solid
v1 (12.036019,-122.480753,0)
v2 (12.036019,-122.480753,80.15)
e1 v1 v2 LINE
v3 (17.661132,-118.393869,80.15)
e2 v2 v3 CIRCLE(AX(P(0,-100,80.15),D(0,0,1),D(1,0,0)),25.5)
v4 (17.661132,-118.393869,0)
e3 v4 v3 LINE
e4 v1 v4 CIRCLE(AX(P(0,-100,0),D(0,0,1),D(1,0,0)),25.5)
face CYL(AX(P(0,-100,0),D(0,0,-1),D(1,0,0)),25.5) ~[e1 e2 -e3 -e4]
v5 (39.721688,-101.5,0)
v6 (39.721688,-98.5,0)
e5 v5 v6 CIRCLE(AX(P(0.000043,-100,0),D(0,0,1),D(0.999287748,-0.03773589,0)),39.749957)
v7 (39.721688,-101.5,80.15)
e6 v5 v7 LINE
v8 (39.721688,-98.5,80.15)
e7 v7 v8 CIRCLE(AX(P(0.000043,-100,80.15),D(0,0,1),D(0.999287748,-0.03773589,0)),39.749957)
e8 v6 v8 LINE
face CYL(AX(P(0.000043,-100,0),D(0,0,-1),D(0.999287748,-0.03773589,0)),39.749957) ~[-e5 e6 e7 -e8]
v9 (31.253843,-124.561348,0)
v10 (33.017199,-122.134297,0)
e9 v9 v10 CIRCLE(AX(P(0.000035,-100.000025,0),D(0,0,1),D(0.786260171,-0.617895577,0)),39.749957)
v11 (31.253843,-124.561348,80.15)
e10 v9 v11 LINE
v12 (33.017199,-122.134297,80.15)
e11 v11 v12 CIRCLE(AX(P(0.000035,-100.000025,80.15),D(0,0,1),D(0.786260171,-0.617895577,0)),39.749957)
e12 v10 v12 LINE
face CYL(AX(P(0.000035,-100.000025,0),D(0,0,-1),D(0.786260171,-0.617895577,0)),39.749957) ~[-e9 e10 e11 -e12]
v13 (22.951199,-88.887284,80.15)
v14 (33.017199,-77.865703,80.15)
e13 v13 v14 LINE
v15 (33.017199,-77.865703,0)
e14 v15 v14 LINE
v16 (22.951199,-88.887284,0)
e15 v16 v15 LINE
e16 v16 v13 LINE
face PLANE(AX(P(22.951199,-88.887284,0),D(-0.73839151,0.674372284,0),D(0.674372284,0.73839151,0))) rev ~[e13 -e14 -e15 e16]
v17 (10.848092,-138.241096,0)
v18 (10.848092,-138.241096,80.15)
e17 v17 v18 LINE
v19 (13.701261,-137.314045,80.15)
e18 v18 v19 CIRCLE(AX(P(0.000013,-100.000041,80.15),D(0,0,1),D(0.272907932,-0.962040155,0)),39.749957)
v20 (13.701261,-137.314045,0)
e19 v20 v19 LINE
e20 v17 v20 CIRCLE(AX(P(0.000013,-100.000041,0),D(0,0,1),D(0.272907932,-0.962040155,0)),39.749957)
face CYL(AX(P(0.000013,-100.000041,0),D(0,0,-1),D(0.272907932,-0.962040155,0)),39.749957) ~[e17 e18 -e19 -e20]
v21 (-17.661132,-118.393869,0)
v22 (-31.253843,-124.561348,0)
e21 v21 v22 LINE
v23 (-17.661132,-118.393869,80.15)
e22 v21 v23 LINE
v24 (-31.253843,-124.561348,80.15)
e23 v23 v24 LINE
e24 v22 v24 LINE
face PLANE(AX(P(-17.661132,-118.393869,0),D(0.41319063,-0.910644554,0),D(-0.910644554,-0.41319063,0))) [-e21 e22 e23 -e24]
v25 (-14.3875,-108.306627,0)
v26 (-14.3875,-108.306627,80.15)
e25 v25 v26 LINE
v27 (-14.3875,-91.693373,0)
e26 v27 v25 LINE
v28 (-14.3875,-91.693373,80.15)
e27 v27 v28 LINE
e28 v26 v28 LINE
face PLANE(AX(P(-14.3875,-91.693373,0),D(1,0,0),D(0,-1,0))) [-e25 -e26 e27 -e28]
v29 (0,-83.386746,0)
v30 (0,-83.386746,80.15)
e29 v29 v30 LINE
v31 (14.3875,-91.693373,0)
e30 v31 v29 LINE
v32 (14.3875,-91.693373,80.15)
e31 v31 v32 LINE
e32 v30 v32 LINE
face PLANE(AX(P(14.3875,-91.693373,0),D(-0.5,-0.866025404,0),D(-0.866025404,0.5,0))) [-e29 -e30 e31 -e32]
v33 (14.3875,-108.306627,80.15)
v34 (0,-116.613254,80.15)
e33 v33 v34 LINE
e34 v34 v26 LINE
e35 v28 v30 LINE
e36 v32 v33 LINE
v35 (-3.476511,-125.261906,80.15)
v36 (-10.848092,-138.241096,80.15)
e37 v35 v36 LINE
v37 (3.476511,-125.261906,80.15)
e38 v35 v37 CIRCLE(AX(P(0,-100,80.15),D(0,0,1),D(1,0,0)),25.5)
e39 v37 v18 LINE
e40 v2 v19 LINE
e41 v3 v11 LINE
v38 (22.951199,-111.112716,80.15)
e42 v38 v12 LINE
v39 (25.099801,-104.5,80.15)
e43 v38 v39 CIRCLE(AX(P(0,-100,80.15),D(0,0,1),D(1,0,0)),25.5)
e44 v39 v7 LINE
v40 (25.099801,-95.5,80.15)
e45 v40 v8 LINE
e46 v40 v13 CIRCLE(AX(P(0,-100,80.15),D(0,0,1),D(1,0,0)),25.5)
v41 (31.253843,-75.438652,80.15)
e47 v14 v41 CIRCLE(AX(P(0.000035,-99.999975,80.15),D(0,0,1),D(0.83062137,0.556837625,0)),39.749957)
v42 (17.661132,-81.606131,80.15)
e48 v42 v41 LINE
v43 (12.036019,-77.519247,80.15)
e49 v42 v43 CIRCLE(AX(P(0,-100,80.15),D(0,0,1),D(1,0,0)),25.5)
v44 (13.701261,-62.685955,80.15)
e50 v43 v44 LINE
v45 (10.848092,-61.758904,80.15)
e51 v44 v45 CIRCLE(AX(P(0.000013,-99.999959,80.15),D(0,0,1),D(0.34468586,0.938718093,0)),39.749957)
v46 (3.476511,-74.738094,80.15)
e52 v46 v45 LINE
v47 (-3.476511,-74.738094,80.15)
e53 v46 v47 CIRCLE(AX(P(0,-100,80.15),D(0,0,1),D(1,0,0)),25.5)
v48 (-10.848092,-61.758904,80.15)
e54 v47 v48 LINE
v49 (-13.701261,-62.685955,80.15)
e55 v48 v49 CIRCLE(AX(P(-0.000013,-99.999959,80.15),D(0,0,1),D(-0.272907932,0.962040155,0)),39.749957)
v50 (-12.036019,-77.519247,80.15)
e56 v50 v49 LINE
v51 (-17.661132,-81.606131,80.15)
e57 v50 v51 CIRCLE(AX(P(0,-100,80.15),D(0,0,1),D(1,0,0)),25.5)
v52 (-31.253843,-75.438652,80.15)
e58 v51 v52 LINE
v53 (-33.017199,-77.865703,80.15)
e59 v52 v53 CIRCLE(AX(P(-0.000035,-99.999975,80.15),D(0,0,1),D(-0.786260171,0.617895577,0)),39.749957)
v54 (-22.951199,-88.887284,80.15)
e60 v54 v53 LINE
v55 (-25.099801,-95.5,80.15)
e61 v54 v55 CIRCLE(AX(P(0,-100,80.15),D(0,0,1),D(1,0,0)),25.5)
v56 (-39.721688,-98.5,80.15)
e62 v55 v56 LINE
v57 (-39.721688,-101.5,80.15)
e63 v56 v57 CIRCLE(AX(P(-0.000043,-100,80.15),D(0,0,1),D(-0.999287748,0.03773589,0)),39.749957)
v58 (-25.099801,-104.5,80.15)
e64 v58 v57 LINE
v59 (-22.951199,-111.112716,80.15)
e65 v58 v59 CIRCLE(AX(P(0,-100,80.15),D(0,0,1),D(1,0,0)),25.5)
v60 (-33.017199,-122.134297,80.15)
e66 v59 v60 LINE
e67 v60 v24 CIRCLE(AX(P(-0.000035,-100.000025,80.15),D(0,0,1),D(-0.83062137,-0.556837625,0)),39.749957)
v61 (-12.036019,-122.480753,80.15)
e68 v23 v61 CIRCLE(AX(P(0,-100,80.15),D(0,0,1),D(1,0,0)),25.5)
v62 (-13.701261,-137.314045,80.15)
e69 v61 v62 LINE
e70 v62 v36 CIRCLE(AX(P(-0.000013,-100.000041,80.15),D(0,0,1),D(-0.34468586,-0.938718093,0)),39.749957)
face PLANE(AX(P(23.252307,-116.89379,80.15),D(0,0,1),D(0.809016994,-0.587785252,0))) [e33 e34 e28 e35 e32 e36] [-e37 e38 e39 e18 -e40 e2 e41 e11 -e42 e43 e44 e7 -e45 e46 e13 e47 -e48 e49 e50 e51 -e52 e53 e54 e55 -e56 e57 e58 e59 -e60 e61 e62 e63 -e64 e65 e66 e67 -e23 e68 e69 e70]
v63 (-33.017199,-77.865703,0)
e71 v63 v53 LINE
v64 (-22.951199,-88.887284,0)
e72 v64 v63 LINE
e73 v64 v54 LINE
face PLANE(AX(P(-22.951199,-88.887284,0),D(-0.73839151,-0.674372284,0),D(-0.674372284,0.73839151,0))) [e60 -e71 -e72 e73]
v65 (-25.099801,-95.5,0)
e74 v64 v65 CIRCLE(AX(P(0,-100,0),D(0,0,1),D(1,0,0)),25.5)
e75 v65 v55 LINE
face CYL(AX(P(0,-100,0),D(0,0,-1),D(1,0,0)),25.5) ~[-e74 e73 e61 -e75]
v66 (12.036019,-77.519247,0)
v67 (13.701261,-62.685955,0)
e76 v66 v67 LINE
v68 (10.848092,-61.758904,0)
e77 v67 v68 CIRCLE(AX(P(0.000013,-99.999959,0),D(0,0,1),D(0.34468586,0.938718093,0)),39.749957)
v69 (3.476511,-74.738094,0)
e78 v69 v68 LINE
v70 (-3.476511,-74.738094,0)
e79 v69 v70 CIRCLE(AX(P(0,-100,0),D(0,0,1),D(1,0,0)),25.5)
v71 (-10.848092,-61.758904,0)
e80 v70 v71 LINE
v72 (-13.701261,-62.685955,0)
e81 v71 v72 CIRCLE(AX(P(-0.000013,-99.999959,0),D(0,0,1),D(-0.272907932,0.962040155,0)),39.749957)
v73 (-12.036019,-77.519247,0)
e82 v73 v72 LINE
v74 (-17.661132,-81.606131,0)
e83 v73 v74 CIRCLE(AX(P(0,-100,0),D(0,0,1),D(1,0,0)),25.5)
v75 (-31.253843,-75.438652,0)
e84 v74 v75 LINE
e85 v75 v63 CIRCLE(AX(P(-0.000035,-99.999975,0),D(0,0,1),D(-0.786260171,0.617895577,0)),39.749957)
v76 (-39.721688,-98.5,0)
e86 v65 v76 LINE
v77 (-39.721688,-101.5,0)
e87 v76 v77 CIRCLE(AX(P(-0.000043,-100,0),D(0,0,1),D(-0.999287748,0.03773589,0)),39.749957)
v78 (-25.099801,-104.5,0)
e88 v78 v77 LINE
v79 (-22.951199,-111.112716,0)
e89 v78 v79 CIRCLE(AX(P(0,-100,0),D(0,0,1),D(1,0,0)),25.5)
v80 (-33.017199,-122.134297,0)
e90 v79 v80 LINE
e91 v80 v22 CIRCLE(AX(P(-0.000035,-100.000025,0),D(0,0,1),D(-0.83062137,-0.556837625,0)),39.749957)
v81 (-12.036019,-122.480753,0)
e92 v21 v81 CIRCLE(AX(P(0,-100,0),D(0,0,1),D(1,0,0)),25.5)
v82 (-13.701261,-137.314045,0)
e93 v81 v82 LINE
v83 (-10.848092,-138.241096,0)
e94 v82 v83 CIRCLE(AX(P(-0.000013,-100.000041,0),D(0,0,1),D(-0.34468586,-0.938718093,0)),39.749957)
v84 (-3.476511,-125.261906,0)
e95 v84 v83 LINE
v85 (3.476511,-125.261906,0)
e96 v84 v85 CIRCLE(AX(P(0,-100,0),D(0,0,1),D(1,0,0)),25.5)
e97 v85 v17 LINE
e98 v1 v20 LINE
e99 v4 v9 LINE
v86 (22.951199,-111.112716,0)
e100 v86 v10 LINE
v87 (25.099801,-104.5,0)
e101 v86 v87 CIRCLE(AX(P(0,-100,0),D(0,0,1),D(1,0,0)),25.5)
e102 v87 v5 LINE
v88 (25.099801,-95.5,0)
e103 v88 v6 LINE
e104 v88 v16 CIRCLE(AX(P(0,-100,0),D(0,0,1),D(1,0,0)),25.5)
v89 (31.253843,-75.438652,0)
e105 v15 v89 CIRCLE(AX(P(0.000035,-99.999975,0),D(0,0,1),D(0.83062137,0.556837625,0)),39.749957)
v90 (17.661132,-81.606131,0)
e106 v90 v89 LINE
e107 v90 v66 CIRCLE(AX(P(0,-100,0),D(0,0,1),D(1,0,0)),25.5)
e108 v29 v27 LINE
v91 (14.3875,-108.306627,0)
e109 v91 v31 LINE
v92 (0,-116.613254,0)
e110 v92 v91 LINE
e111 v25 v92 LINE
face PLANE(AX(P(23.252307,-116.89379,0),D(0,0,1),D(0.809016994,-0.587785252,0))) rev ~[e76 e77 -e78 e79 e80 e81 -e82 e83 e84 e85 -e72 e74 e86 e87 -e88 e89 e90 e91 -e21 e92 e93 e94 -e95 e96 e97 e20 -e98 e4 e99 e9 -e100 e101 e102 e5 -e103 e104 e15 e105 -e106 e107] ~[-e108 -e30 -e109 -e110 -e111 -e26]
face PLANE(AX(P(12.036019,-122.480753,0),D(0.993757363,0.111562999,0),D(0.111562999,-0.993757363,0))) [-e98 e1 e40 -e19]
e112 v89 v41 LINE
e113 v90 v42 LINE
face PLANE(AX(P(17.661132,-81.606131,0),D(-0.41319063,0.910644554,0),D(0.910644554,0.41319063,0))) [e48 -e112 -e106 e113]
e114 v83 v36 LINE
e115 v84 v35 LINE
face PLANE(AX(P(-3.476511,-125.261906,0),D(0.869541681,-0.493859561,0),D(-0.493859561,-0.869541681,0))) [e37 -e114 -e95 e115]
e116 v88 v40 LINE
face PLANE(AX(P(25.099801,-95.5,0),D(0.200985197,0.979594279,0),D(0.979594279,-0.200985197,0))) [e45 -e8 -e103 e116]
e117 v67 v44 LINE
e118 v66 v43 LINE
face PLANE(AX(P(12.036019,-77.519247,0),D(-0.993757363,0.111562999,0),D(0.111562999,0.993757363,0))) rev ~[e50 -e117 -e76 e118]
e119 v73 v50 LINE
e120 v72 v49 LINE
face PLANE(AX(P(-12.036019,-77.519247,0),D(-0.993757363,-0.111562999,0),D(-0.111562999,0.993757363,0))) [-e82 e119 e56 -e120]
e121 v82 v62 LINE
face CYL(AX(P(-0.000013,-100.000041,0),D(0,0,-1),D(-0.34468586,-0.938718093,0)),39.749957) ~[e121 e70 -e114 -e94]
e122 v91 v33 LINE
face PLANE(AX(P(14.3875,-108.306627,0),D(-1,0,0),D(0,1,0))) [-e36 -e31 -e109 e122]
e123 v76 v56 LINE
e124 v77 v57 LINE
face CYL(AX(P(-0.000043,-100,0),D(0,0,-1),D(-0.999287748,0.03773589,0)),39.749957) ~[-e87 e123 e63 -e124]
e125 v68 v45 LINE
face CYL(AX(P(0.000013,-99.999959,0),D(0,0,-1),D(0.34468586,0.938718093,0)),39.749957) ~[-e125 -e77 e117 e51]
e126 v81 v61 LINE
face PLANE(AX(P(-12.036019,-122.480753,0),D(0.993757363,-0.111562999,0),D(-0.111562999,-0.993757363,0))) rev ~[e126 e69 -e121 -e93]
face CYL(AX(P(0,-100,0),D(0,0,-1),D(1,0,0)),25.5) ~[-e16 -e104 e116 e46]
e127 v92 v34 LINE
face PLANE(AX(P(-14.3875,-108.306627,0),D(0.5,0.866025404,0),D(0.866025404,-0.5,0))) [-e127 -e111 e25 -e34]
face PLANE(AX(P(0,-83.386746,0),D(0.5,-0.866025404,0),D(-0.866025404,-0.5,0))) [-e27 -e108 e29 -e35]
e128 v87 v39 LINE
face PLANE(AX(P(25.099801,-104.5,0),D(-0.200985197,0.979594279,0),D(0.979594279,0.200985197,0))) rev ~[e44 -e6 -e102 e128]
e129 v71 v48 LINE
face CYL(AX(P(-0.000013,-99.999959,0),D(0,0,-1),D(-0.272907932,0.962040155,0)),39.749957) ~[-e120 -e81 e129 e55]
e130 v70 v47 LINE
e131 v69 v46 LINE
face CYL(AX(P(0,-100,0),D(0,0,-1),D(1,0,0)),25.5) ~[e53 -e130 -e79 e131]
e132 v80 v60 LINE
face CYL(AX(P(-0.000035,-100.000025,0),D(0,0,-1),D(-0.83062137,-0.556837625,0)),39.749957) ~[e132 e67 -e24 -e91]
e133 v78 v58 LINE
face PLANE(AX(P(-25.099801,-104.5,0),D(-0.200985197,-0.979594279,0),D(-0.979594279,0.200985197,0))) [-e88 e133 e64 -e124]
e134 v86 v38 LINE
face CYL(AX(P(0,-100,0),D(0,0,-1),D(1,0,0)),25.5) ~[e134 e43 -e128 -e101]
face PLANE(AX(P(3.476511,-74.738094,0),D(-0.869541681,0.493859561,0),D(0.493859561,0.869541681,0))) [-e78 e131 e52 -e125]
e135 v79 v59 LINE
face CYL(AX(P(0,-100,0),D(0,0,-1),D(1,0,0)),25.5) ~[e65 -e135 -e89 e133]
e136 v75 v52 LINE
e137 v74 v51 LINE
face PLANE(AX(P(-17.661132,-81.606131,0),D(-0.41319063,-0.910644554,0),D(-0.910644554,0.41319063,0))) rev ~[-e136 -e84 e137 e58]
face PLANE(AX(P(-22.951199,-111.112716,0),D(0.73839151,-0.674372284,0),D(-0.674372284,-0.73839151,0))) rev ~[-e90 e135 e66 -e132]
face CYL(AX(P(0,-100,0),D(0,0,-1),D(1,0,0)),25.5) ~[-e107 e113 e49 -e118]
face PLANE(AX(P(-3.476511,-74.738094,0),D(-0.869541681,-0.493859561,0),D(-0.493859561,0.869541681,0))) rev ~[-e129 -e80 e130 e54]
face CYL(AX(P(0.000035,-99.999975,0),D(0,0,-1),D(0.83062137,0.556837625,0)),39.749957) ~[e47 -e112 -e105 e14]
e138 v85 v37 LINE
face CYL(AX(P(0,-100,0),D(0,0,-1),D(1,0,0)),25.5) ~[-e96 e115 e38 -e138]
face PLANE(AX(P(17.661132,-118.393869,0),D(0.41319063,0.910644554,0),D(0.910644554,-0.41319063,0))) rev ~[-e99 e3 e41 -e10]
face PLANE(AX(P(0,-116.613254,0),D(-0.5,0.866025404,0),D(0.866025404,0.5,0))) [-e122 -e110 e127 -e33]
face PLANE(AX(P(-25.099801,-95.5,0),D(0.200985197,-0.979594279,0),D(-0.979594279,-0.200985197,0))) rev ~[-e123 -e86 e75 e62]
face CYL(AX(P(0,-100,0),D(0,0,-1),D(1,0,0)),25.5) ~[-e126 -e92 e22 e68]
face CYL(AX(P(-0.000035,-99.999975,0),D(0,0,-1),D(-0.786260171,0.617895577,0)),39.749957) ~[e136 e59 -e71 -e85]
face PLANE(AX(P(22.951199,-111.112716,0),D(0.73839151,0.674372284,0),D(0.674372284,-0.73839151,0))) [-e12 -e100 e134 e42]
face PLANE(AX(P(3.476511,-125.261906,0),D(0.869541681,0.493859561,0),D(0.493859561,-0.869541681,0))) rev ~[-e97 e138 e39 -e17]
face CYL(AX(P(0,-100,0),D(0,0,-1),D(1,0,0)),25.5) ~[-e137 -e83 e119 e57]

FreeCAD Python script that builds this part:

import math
import FreeCAD as App
import Part
import Sketcher
from FreeCAD import Vector
Q = App.Units.Quantity


def add_polygon(sketch, points):
    """Adds a closed chain of lines whose ends are joined by coincident constraints."""
    first, n = sketch.GeometryCount, len(points)
    for a, b in zip(points, points[1:] + points[:1]):
        sketch.addGeometry(Part.LineSegment(App.Vector(*a, 0), App.Vector(*b, 0)), False)
    for i in range(n):
        sketch.addConstraint(Sketcher.Constraint("Coincident", first + i, 2, first + (i + 1) % n, 1))

doc = App.newDocument("Part")
params = doc.addObject("Spreadsheet::Sheet", "Params")
for row, (alias, value) in enumerate([
    ("sketch1_diameter", "51 mm"),
    ("pad1_length", "80.15 mm"),
    ("pad2_length", "80.15 mm"),
], start=1):
    params.set(f"A{row}", alias)
    params.set(f"B{row}", "=" + value)
    params.setAlias(f"B{row}", alias)

body = doc.addObject("PartDesign::Body", "Body")

sketch1 = doc.addObject("Sketcher::SketchObject", "Sketch")
body.addObject(sketch1)
sketch1.AttachmentSupport = (doc.XY_Plane, [""])
sketch1.MapMode = "FlatFace"
sketch1.addGeometry(Part.Circle(Vector(0, 0, 0), Vector(0, 0, 1), 26), False)
sketch1.addConstraint([
    Sketcher.Constraint("Coincident", 0, 3, -1, 1),
    Sketcher.Constraint("Diameter", 0, Q("51 mm")),
])
sketch1.setExpression("Constraints[1]", "Params.sketch1_diameter")
pad1 = doc.addObject("PartDesign::Pad", "Pad")
body.addObject(pad1)
pad1.Profile = sketch1
pad1.setExpression("Length", "Params.pad1_length")

sketch2 = doc.addObject("Sketcher::SketchObject", "Sketch001")
body.addObject(sketch2)
sketch2.AttachmentSupport = (doc.XY_Plane, [""])
sketch2.MapMode = "FlatFace"
sketch2.addGeometry([
    Part.ArcOfCircle(Part.Circle(Vector(0, 0, 0), Vector(0, 0, 1), 39.7), math.radians(-2.16), math.radians(2.16)),
    Part.LineSegment(Vector(39.7, 1.5, 0), Vector(25.1, 4.5, 0)),
    Part.LineSegment(Vector(25.1, 4.5, 0), Vector(17, 0, 0)),
    Part.LineSegment(Vector(17, 0, 0), Vector(25.1, -4.5, 0)),
    Part.LineSegment(Vector(25.1, -4.5, 0), Vector(39.7, -1.5, 0)),
], False)
sketch2.addConstraint([
    Sketcher.Constraint("Coincident", 0, 2, 1, 1),
    Sketcher.Constraint("Coincident", 1, 2, 2, 1),
    Sketcher.Constraint("Coincident", 2, 2, 3, 1),
    Sketcher.Constraint("Coincident", 3, 2, 4, 1),
    Sketcher.Constraint("Coincident", 4, 2, 0, 1),
    Sketcher.Constraint("Symmetric", 1, 2, 3, 2, -1),
    Sketcher.Constraint("Symmetric", 0, 2, 4, 2, -1),
    Sketcher.Constraint("PointOnObject", 2, 2, -1),
    Sketcher.Constraint("DistanceX", -1, 1, 2, 2, Q("17 mm")),
    Sketcher.Constraint("DistanceY", 0, 2, 1, 2, Q("3 mm")),
    Sketcher.Constraint("DistanceY", 3, 2, 1, 2, Q("9 mm")),
    Sketcher.Constraint("Radius", 0, Q("39.749957 mm")),
    Sketcher.Constraint("DistanceX", -1, 1, 1, 2, Q("25.099801 mm")),
    Sketcher.Constraint("DistanceX", -1, 1, 0, 2, Q("39.721688 mm")),
])
pad2 = doc.addObject("PartDesign::Pad", "Pad001")
body.addObject(pad2)
pad2.Profile = sketch2
pad2.setExpression("Length", "Params.pad2_length")
doc.recompute()

polarpattern = doc.addObject("PartDesign::PolarPattern", "PolarPattern")
body.addObject(polarpattern)
polarpattern.Originals = [pad2]
polarpattern.Axis = (doc.Z_Axis, [""])
polarpattern.Angle = 360
polarpattern.Occurrences = 10
body.Tip = polarpattern

sketch3 = doc.addObject("Sketcher::SketchObject", "Sketch002")
body.addObject(sketch3)
sketch3.AttachmentSupport = (doc.XY_Plane, [""])
sketch3.MapMode = "FlatFace"
add_polygon(sketch3, [(14, 8), (0, 17), (-14, 8), (-14, -8), (0, -17), (14, -8)])
sketch3.addConstraint([
    Sketcher.Constraint("Vertical", 2),
    Sketcher.Constraint("Vertical", 5),
    Sketcher.Constraint("Symmetric", 0, 2, 3, 2, -1, 1),
    Sketcher.Constraint("Symmetric", 1, 2, 4, 2, -1, 1),
    Sketcher.Constraint("PointOnObject", 0, 2, -2),
    Sketcher.Constraint("Parallel", 0, 3),
    Sketcher.Constraint("Horizontal", 2, 2, 4, 2),
    Sketcher.Constraint("Angle", 0, Q("150 deg")),
    Sketcher.Constraint("DistanceX", 2, 2, 4, 2, Q("28.775 mm")),
    Sketcher.Constraint("DistanceY", 2, 2, 2, 1, Q("16.613254 mm")),
])
pocket1 = doc.addObject("PartDesign::Pocket", "Pocket")
body.addObject(pocket1)
pocket1.Profile = sketch3
pocket1.Type = "ThroughAll"
pocket1.Reversed = True
body2 = doc.addObject("PartDesign::Body", "Body001")
doc.recompute()

body.Placement = App.Placement(Vector(0, -100, 0), App.Rotation(Vector(0, 0, 1), 0))
boolean = doc.addObject("PartDesign::Boolean", "Boolean")
body2.addObject(boolean)
boolean.Type = "Fuse"
boolean.addObjects([body])

doc.recompute()
